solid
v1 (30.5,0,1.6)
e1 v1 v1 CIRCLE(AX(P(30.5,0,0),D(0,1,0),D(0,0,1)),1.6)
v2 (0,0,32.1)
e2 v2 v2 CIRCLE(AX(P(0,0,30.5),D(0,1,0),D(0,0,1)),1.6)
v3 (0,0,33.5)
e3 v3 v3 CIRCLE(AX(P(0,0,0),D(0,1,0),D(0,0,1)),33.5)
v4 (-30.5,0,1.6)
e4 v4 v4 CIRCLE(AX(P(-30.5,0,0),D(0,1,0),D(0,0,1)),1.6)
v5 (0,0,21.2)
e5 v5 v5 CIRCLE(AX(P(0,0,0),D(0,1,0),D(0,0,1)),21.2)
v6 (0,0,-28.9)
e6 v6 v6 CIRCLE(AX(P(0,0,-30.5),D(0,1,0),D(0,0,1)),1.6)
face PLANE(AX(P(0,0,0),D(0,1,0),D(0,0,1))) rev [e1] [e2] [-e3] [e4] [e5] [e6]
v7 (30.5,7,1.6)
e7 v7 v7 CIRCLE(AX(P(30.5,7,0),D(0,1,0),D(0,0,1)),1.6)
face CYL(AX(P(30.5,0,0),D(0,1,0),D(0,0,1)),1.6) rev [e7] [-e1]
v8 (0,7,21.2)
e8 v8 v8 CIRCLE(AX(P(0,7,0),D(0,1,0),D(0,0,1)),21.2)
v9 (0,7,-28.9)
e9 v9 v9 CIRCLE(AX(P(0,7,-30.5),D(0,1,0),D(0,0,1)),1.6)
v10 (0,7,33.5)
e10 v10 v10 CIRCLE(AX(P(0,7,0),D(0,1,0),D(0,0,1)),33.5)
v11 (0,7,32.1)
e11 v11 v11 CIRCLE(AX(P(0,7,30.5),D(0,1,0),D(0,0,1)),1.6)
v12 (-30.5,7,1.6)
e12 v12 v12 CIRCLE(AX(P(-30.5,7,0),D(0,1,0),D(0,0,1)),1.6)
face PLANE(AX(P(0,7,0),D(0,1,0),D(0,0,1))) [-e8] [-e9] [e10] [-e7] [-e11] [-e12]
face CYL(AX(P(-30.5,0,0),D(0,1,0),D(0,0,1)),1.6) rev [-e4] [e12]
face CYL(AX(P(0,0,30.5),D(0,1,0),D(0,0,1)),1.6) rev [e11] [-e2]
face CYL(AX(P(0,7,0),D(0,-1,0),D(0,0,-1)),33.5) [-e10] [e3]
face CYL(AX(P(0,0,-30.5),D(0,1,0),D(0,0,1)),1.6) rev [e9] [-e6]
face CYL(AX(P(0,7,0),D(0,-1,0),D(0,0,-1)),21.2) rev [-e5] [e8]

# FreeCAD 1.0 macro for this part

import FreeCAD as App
import Part
import Sketcher

V = App.Vector
Q = App.Units.Quantity

doc = App.newDocument("Part")
body = doc.addObject("PartDesign::Body", "Body")

sketch1 = body.newObject("Sketcher::SketchObject", "Sketch")
sketch1.AttachmentSupport = (doc.getObject("XZ_Plane"), [""])
sketch1.MapMode = "FlatFace"
sketch1.addGeometry([
    Part.Circle(V(0, 0, 0), V(0, 0, 1), 34),
    Part.Circle(V(0, 0, 0), V(0, 0, 1), 21),
], False)
sketch1.addConstraint([
    Sketcher.Constraint("Coincident", 0, 3, -1, 1),
    Sketcher.Constraint("Coincident", 1, 3, -1, 1),
    Sketcher.Constraint("Diameter", 0, Q("67 mm")),
    Sketcher.Constraint("Diameter", 1, Q("42.4 mm")),
])
pad1 = body.newObject("PartDesign::Pad", "Pad")
pad1.Profile = sketch1
pad1.Length = 7
pad1.Reversed = True

sketch2 = body.newObject("Sketcher::SketchObject", "Sketch001")
sketch2.AttachmentSupport = (doc.getObject("XZ_Plane"), [""])
sketch2.MapMode = "FlatFace"
sketch2.AttachmentOffset = App.Placement(V(0, 0, -7), App.Rotation())
sketch2.addGeometry([
    Part.Circle(V(0, -30.5, 0), V(0, 0, 1), 1.6),
    Part.Circle(V(30.5, 0, 0), V(0, 0, 1), 1.6),
    Part.Circle(V(0, 30.5, 0), V(0, 0, 1), 1.6),
    Part.Circle(V(-30.5, 0, 0), V(0, 0, 1), 1.6),
], False)
sketch2.addConstraint([
    Sketcher.Constraint("Equal", 0, 1),
    Sketcher.Constraint("Equal", 1, 2),
    Sketcher.Constraint("Equal", 2, 3),
    Sketcher.Constraint("Symmetric", 0, 3, 2, 3, -1, 1),
    Sketcher.Constraint("Symmetric", 1, 3, 3, 3, -1, 1),
    Sketcher.Constraint("PointOnObject", 0, 3, -2),
    Sketcher.Constraint("PointOnObject", 1, 3, -1),
    Sketcher.Constraint("Diameter", 0, Q("3.2 mm")),
    Sketcher.Constraint("DistanceY", 0, 3, 2, 3, Q("61 mm")),
    Sketcher.Constraint("DistanceX", 3, 3, 1, 3, Q("61 mm")),
])
pocket1 = body.newObject("PartDesign::Pocket", "Pocket")
pocket1.Profile = sketch2
pocket1.Type = "ThroughAll"
pocket1.Reversed = True

doc.recompute()
